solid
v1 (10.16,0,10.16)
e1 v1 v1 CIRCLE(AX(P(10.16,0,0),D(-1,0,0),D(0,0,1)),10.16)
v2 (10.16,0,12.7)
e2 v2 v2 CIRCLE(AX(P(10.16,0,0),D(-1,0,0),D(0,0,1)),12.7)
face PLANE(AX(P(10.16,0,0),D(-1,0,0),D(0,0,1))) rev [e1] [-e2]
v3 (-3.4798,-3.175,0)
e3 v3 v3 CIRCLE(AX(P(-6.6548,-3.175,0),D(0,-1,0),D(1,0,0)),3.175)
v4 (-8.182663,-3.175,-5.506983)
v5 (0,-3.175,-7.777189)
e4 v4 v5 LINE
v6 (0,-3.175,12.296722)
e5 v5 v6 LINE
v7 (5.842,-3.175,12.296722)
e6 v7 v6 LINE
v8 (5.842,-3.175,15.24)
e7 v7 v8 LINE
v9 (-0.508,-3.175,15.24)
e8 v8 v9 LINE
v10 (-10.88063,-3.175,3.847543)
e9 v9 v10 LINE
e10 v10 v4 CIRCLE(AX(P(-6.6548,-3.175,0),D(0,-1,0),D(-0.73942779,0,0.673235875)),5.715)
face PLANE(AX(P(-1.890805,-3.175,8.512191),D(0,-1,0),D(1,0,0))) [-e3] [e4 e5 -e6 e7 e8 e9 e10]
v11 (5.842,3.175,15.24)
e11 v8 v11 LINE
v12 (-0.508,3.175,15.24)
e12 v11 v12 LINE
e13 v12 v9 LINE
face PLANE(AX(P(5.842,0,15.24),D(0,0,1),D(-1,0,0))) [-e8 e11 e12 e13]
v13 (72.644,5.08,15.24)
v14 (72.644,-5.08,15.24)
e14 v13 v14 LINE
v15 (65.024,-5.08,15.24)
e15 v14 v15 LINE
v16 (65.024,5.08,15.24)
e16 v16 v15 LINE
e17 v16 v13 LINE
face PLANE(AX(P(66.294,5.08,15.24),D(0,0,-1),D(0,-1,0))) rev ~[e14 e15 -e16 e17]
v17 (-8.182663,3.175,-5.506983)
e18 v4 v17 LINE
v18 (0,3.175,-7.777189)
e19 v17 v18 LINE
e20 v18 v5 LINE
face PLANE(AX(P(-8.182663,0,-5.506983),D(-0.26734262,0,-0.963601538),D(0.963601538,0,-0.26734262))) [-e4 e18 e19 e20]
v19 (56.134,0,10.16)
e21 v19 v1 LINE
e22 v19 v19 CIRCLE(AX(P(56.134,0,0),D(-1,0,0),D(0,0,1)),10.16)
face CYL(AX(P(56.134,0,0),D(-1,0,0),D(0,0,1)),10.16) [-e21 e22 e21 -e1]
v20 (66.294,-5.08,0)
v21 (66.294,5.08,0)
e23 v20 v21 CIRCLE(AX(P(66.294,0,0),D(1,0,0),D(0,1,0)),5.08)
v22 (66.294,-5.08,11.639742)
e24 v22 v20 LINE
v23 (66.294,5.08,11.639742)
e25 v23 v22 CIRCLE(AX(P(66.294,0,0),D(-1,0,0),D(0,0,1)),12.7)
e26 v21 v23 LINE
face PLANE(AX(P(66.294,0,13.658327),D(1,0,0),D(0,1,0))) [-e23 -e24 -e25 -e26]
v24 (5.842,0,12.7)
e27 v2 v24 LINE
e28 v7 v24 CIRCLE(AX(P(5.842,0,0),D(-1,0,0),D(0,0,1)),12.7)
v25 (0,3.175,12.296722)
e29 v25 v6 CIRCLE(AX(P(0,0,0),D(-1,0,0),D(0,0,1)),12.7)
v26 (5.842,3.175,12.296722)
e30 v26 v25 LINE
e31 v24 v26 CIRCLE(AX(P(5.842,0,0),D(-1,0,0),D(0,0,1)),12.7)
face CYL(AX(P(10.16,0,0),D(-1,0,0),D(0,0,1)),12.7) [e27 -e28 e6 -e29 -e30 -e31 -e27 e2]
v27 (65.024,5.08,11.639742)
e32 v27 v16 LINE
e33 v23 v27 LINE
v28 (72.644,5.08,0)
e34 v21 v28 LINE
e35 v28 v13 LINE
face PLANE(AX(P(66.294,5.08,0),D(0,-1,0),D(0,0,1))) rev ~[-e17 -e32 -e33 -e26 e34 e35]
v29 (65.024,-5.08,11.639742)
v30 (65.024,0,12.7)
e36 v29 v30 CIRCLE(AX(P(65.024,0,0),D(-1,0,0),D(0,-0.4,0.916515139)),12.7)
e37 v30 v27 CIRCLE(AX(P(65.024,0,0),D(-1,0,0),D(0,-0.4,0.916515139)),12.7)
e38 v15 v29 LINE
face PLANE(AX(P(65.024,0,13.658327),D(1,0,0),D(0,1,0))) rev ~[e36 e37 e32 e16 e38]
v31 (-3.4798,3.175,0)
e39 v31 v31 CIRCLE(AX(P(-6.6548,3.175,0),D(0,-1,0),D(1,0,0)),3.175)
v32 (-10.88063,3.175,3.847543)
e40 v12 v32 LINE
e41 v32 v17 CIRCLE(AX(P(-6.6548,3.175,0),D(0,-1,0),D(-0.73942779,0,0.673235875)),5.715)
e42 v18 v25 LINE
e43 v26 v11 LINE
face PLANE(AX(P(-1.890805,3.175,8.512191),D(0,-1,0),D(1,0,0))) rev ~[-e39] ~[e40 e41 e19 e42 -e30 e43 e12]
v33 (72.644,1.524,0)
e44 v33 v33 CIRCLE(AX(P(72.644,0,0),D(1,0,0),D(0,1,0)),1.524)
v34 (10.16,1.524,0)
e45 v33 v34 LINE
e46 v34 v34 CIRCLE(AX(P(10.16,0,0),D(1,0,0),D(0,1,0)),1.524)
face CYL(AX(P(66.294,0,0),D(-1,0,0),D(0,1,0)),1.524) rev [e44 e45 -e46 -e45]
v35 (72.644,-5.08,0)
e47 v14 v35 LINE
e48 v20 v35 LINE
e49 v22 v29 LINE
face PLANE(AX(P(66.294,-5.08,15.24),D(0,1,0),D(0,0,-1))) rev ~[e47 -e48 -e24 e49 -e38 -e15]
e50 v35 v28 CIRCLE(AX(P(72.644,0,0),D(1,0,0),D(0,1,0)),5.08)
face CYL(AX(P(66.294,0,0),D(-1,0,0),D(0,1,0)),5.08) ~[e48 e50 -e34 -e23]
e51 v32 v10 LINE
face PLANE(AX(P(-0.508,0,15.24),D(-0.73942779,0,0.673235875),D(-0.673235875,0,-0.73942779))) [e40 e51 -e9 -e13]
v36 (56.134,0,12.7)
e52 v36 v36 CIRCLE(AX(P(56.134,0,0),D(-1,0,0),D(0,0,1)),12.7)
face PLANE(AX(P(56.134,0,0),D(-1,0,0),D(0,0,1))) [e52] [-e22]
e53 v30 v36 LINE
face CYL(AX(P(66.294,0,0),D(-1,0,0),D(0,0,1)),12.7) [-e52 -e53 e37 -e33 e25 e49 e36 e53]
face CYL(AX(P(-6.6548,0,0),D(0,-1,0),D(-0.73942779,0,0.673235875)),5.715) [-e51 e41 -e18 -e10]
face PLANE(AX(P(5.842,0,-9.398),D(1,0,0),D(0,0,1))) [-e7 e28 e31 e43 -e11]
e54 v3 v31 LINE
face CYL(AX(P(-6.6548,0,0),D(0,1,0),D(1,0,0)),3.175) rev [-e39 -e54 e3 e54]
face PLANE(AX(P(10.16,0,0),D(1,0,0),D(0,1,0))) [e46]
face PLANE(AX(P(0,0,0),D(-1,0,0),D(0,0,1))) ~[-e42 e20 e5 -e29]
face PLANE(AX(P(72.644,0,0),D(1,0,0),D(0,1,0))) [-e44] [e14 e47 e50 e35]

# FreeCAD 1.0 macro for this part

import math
import FreeCAD as App
import Part
import Sketcher
Q = App.Units.Quantity


def add_polygon(sketch, points):
    """Adds a closed chain of lines whose ends are joined by coincident constraints."""
    first, n = sketch.GeometryCount, len(points)
    for a, b in zip(points, points[1:] + points[:1]):
        sketch.addGeometry(Part.LineSegment(App.Vector(*a, 0), App.Vector(*b, 0)), False)
    for i in range(n):
        sketch.addConstraint(Sketcher.Constraint("Coincident", first + i, 2, first + (i + 1) % n, 1))

doc = App.newDocument("Part")
body = doc.addObject("PartDesign::Body", "Body")

# Sketch on XZ plane
sketch1 = body.newObject("Sketcher::SketchObject", "Sketch")
sketch1.AttachmentSupport = (doc.getObject("XZ_Plane"), [""])
sketch1.MapMode = "FlatFace"
sketch1.addGeometry([
    Part.LineSegment(App.Vector(5.8, 15.2, 0), App.Vector(-0.5, 15.2, 0)),  # 0
    Part.LineSegment(App.Vector(-0.5, 15.2, 0), App.Vector(-10.9, 3.8, 0)),  # 1
    Part.ArcOfCircle(Part.Circle(App.Vector(-6.7, 0, 0), App.Vector(0, 0, 1), 5.7), math.radians(138), math.radians(254)),  # 2
    Part.LineSegment(App.Vector(-8.2, -5.5, 0), App.Vector(5.8, -9.4, 0)),  # 3
    Part.LineSegment(App.Vector(5.8, -9.4, 0), App.Vector(5.8, 15.2, 0)),  # 4
    Part.Circle(App.Vector(-6.7, 0, 0), App.Vector(0, 0, 1), 3.2),  # 5
], False)
sketch1.addConstraint([
    Sketcher.Constraint("Coincident", 0, 2, 1, 1),
    Sketcher.Constraint("Tangent", 1, 2, 2, 1),
    Sketcher.Constraint("Tangent", 2, 2, 3, 1),
    Sketcher.Constraint("Coincident", 3, 2, 4, 1),
    Sketcher.Constraint("Coincident", 4, 2, 0, 1),
    Sketcher.Constraint("Horizontal", 0),
    Sketcher.Constraint("Vertical", 4),
    Sketcher.Constraint("Coincident", 5, 3, 2, 3),
    Sketcher.Constraint("PointOnObject", 2, 3, -1),
    Sketcher.Constraint("Diameter", 5, Q("0.25 in")),
    Sketcher.Constraint("Radius", 2, Q("0.225 in")),
    Sketcher.Constraint("DistanceX", 0, 2, 0, 1, Q("0.25 in")),
    Sketcher.Constraint("DistanceY", 4, 1, 4, 2, Q("0.97 in")),
    Sketcher.Constraint("DistanceY", -1, 1, 0, 2, Q("0.6 in")),
    Sketcher.Constraint("DistanceX", 0, 2, -1, 1, Q("0.02 in")),
    Sketcher.Constraint("DistanceX", 2, 3, -1, 1, Q("0.262 in")),
])
pad1 = body.newObject("PartDesign::Pad", "Pad")
pad1.Profile = sketch1
pad1.Length = Q("0.25 in")
pad1.Midplane = True

# Sketch on XZ plane
sketch2 = body.newObject("Sketcher::SketchObject", "Sketch001")
sketch2.AttachmentSupport = (doc.getObject("XZ_Plane"), [""])
sketch2.MapMode = "FlatFace"
add_polygon(sketch2, [(66.3, 0), (66.3, 12.7), (56.1, 12.7), (56.1, 10.2), (10.2, 10.2), (10.2, 12.7), (0, 12.7), (0, 0)])  # lines 0-7
sketch2.addConstraint([
    Sketcher.Constraint("Vertical", 0),
    Sketcher.Constraint("Horizontal", 1),
    Sketcher.Constraint("Vertical", 2),
    Sketcher.Constraint("Horizontal", 3),
    Sketcher.Constraint("Vertical", 4),
    Sketcher.Constraint("Horizontal", 5),
    Sketcher.Constraint("Vertical", 6),
    Sketcher.Constraint("Horizontal", 7),
    Sketcher.Constraint("Coincident", 6, 2, -1, 1),
    Sketcher.Constraint("Horizontal", 1, 2, 4, 2),
    Sketcher.Constraint("Equal", 1, 5),
    Sketcher.Constraint("DistanceX", 1, 2, 1, 1, Q("0.4 in")),
    Sketcher.Constraint("DistanceY", 0, 1, 0, 2, Q("0.5 in")),
    Sketcher.Constraint("DistanceY", 2, 2, 2, 1, Q("0.1 in")),
    Sketcher.Constraint("DistanceX", 3, 2, 3, 1, Q("1.81 in")),
])
revolution = body.newObject("PartDesign::Revolution", "Revolution")
revolution.Profile = sketch2
revolution.ReferenceAxis = (sketch2, ["H_Axis"])
revolution.Angle = 360

# Sketch on YZ plane
sketch3 = body.newObject("Sketcher::SketchObject", "Sketch002")
sketch3.AttachmentSupport = (doc.getObject("YZ_Plane"), [""])
sketch3.MapMode = "FlatFace"
sketch3.AttachmentOffset = App.Placement(App.Vector(0, 0, 2.61 * 25.4), App.Rotation())
sketch3.addGeometry([
    Part.ArcOfCircle(Part.Circle(App.Vector(0, 0, 0), App.Vector(0, 0, 1), 12.7), math.radians(66), math.radians(114)),
    Part.LineSegment(App.Vector(5.1, 11.6, 0), App.Vector(5.1, 15.2, 0)),
    Part.LineSegment(App.Vector(5.1, 15.2, 0), App.Vector(-5.1, 15.2, 0)),
    Part.LineSegment(App.Vector(-5.1, 15.2, 0), App.Vector(-5.1, 11.6, 0)),
], False)
sketch3.addConstraint([
    Sketcher.Constraint("Coincident", 0, 1, 1, 1),
    Sketcher.Constraint("Coincident", 1, 2, 2, 1),
    Sketcher.Constraint("Coincident", 2, 2, 3, 1),
    Sketcher.Constraint("Coincident", 3, 2, 0, 2),
    Sketcher.Constraint("Vertical", 1),
    Sketcher.Constraint("Horizontal", 2),
    Sketcher.Constraint("Vertical", 3),
    Sketcher.Constraint("Coincident", 0, 3, -1, 1),
    Sketcher.Constraint("Horizontal", 0, 1, 3, 2),
    Sketcher.Constraint("Radius", 0, Q("0.5 in")),
    Sketcher.Constraint("DistanceX", 2, 2, 2, 1, Q("0.4 in")),
    Sketcher.Constraint("DistanceY", -1, 1, 1, 2, Q("0.6 in")),
])
pad2 = body.newObject("PartDesign::Pad", "Pad001")
pad2.Profile = sketch3
pad2.Length = Q("0.05 in")
pad2.Reversed = True

# Sketch on YZ plane
sketch4 = body.newObject("Sketcher::SketchObject", "Sketch003")
sketch4.AttachmentSupport = (doc.getObject("YZ_Plane"), [""])
sketch4.MapMode = "FlatFace"
sketch4.AttachmentOffset = App.Placement(App.Vector(0, 0, 2.61 * 25.4), App.Rotation())
sketch4.addGeometry(Part.Circle(App.Vector(0, 0, 0), App.Vector(0, 0, 1), 1.5), False)
sketch4.addConstraint([
    Sketcher.Constraint("Coincident", 0, 3, -1, 1),
    Sketcher.Constraint("Diameter", 0, Q("0.12 in")),
])
pocket1 = body.newObject("PartDesign::Pocket", "Pocket")
pocket1.Profile = sketch4
pocket1.Length = Q("2.21 in")

# Sketch on YZ plane
sketch5 = body.newObject("Sketcher::SketchObject", "Sketch004")
sketch5.AttachmentSupport = (doc.getObject("YZ_Plane"), [""])
sketch5.MapMode = "FlatFace"
sketch5.AttachmentOffset = App.Placement(App.Vector(0, 0, 2.61 * 25.4), App.Rotation())
sketch5.addGeometry([
    Part.ArcOfCircle(Part.Circle(App.Vector(0, 0, 0), App.Vector(0, 0, 1), 5.1), math.radians(180), math.radians(360)),  # 0
    Part.LineSegment(App.Vector(5.1, 0, 0), App.Vector(5.1, 15.2, 0)),  # 1
    Part.LineSegment(App.Vector(5.1, 15.2, 0), App.Vector(-5.1, 15.2, 0)),  # 2
    Part.LineSegment(App.Vector(-5.1, 15.2, 0), App.Vector(-5.1, 0, 0)),  # 3
    Part.Circle(App.Vector(0, 0, 0), App.Vector(0, 0, 1), 1.5),  # 4
], False)
sketch5.addConstraint([
    Sketcher.Constraint("Tangent", 0, 2, 1, 1),
    Sketcher.Constraint("Coincident", 1, 2, 2, 1),
    Sketcher.Constraint("Coincident", 2, 2, 3, 1),
    Sketcher.Constraint("Tangent", 3, 2, 0, 1),
    Sketcher.Constraint("Vertical", 1),
    Sketcher.Constraint("Horizontal", 2),
    Sketcher.Constraint("Vertical", 3),
    Sketcher.Constraint("Coincident", 0, 3, -1, 1),
    Sketcher.Constraint("Coincident", 4, 3, -1, 1),
    Sketcher.Constraint("Radius", 0, Q("0.2 in")),
    Sketcher.Constraint("Diameter", 4, Q("0.12 in")),
    Sketcher.Constraint("DistanceY", 1, 1, 1, 2, Q("0.6 in")),
])
pad3 = body.newObject("PartDesign::Pad", "Pad002")
pad3.Profile = sketch5
pad3.Length = Q("0.25 in")

doc.recompute()
